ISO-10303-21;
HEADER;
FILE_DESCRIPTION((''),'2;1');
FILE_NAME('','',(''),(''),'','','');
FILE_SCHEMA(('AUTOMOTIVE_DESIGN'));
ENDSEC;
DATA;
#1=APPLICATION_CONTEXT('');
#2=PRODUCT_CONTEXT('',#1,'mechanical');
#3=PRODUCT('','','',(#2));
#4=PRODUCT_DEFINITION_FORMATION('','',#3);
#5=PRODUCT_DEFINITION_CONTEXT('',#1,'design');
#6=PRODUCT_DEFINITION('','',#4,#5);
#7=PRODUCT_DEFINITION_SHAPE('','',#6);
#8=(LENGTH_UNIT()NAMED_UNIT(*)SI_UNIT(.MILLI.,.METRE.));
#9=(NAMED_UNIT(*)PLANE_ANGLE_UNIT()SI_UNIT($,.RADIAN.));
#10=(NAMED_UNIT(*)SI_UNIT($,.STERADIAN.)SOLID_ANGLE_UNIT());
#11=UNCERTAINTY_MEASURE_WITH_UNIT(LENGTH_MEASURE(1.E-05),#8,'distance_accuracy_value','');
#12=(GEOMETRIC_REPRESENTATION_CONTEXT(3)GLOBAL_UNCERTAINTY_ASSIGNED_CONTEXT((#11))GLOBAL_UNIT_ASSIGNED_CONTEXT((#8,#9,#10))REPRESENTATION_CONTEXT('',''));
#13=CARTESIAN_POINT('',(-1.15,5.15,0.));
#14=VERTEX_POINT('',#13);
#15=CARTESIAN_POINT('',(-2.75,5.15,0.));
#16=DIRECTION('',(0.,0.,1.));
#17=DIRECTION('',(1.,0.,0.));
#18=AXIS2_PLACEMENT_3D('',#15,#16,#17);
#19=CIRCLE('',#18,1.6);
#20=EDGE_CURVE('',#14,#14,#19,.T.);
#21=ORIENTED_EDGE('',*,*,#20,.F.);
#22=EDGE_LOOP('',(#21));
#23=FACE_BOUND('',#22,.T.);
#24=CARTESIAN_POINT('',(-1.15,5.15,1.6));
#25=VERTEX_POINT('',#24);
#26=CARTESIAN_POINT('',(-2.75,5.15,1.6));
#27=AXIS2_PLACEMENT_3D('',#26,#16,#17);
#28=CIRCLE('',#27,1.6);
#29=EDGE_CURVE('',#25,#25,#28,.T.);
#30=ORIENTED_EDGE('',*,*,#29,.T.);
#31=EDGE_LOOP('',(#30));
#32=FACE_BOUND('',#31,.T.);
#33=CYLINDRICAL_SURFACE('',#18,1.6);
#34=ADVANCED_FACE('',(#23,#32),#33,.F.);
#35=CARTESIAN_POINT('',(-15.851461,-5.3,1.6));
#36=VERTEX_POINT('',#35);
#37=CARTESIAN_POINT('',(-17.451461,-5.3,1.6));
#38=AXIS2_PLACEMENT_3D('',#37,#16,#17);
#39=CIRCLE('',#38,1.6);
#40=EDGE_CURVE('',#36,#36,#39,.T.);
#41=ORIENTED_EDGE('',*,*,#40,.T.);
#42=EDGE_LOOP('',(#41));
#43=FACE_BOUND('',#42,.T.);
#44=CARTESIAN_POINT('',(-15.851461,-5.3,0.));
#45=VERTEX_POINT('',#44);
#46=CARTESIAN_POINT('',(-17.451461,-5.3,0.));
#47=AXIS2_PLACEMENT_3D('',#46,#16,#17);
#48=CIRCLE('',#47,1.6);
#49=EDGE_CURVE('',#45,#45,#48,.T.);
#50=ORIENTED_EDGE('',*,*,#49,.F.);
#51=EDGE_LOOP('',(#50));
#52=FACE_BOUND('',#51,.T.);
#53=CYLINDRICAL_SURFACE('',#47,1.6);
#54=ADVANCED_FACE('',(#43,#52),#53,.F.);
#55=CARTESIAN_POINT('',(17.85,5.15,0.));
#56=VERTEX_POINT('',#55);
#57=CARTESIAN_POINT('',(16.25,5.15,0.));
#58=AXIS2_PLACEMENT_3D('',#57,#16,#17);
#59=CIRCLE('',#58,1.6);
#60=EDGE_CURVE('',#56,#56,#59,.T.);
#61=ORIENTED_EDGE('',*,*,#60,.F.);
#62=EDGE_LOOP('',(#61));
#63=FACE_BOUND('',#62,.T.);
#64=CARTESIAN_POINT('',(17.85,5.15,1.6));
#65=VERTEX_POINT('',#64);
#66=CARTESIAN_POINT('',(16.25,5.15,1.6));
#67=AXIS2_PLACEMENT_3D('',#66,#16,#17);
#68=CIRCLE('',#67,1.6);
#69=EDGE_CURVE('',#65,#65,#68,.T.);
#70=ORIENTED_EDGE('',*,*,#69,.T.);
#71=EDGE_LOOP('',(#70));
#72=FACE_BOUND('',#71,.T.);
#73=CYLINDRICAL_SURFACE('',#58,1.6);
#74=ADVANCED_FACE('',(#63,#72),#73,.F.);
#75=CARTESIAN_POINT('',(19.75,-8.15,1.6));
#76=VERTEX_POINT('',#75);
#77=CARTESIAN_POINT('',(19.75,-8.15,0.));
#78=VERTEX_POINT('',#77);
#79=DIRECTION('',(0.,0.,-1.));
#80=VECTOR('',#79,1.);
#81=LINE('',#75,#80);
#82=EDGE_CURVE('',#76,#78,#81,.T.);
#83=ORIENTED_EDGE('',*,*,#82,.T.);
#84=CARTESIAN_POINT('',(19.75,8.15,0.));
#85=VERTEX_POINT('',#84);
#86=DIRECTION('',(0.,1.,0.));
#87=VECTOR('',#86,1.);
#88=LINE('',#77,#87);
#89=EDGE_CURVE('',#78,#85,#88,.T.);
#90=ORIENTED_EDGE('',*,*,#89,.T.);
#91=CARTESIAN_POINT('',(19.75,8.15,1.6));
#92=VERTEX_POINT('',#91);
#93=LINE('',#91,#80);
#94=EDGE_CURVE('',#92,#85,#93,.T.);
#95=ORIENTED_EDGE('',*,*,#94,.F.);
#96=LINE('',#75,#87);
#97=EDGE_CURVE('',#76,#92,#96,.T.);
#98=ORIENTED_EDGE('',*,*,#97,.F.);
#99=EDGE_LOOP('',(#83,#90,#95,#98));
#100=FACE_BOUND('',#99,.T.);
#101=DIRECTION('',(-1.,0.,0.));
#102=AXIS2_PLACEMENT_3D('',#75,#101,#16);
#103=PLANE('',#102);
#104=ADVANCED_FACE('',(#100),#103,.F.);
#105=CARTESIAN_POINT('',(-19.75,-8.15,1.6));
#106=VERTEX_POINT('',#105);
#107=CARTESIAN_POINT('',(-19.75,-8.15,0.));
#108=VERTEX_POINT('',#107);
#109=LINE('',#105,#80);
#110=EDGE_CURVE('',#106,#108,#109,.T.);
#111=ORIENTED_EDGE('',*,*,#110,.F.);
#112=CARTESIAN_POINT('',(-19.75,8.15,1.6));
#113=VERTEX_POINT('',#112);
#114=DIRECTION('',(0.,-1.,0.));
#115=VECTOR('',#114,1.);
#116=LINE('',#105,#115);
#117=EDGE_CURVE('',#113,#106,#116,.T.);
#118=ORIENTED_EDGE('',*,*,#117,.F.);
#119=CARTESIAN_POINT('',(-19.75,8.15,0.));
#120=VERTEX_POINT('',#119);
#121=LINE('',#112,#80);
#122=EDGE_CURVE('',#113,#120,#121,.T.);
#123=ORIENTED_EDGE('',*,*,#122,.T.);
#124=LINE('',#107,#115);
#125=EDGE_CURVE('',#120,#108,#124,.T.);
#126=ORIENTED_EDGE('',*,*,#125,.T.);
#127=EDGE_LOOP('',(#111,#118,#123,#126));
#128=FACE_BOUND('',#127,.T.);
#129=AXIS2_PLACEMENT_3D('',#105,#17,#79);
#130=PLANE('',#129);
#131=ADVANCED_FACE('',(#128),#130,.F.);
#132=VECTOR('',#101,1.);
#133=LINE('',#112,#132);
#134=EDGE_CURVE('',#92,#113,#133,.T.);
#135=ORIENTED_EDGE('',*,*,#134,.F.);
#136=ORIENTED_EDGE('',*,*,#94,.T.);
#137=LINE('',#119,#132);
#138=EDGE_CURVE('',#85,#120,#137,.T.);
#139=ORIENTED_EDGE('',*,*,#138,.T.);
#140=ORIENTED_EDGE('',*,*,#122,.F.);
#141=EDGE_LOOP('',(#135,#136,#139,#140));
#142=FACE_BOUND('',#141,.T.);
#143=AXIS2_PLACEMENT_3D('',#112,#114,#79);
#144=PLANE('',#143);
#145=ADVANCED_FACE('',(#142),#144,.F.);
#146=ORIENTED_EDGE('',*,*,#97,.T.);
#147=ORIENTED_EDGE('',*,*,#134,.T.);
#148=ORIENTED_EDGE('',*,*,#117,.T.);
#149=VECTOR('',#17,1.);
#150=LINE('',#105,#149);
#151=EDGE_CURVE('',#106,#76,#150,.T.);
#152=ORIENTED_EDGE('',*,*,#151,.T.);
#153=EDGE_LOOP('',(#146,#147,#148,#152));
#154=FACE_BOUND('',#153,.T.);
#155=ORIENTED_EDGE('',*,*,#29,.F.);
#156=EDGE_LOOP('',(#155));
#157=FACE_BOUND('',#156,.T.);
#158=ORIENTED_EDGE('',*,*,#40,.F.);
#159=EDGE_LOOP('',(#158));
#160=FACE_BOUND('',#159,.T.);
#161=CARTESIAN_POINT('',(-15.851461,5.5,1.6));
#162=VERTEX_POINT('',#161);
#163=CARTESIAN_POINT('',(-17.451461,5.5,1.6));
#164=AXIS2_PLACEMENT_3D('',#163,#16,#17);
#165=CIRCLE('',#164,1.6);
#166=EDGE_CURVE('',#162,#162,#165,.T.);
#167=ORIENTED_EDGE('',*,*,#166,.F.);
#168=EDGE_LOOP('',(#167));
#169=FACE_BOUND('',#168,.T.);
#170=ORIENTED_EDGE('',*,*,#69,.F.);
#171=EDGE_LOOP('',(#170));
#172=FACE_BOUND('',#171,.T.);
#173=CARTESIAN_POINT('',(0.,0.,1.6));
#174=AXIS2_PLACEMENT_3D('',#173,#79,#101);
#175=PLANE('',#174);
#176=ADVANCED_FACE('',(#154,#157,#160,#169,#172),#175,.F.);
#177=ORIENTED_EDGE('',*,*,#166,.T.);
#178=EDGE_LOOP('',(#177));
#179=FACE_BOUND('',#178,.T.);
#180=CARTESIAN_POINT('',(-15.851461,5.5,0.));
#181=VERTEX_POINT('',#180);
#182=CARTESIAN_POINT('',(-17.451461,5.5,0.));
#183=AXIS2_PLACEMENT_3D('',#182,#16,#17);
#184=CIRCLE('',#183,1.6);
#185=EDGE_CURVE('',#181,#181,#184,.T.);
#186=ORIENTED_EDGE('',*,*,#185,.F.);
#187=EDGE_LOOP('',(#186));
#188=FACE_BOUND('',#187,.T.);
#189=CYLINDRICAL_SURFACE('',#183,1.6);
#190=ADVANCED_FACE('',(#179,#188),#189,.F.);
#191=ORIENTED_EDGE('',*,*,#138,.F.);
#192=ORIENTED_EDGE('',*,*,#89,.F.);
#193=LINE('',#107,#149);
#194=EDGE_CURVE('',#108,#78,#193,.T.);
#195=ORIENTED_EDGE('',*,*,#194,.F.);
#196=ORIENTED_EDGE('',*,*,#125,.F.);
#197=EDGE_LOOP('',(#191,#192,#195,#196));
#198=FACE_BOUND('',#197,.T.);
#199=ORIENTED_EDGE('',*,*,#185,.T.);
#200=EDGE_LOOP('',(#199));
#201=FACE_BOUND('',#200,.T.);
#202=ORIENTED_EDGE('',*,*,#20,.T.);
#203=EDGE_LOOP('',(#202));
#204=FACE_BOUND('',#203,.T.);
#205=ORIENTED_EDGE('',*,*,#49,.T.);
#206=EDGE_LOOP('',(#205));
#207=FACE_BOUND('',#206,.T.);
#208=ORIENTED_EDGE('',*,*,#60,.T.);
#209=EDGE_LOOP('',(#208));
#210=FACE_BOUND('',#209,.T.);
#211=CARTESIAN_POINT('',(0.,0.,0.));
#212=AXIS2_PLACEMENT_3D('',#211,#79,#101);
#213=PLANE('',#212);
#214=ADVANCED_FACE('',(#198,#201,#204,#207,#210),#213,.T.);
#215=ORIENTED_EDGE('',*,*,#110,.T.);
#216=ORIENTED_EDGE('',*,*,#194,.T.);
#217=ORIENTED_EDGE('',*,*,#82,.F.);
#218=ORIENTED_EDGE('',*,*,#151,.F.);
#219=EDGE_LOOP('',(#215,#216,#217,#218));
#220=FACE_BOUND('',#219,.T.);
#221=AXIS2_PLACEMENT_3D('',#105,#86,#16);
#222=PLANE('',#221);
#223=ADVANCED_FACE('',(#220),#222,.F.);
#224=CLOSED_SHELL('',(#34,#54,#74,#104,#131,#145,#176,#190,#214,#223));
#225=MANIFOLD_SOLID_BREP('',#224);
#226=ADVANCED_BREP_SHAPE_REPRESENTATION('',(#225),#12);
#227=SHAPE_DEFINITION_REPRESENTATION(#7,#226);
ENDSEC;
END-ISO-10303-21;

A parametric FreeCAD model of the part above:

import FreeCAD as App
import Part
import Sketcher
Q = App.Units.Quantity


def add_polygon(sketch, points):
    """Adds a closed chain of lines whose ends are joined by coincident constraints."""
    first, n = sketch.GeometryCount, len(points)
    for a, b in zip(points, points[1:] + points[:1]):
        sketch.addGeometry(Part.LineSegment(App.Vector(*a, 0), App.Vector(*b, 0)), False)
    for i in range(n):
        sketch.addConstraint(Sketcher.Constraint("Coincident", first + i, 2, first + (i + 1) % n, 1))

doc = App.newDocument("Part")
body = doc.addObject("PartDesign::Body", "Body")

# Sketch on XY plane
sketch1 = body.newObject("Sketcher::SketchObject", "Sketch")
sketch1.AttachmentSupport = (doc.getObject("XY_Plane"), [""])
sketch1.MapMode = "FlatFace"
add_polygon(sketch1, [(-19.75, 8.15), (-19.75, -8.15), (19.75, -8.15), (19.75, 8.15)])  # lines 0-3
sketch1.addConstraint([
    Sketcher.Constraint("Vertical", 0),
    Sketcher.Constraint("Horizontal", 1),
    Sketcher.Constraint("Vertical", 2),
    Sketcher.Constraint("Horizontal", 3),
    Sketcher.Constraint("Symmetric", 0, 2, 2, 2, -1, 1),
    Sketcher.Constraint("DistanceX", 1, 1, 1, 2, Q("39.5 mm")),
    Sketcher.Constraint("DistanceY", 0, 2, 0, 1, Q("16.3 mm")),
])
pad1 = body.newObject("PartDesign::Pad", "Pad")
pad1.Profile = sketch1
pad1.Length = 1.6

# Sketch on XY plane
sketch2 = body.newObject("Sketcher::SketchObject", "Sketch001")
sketch2.AttachmentSupport = (doc.getObject("XY_Plane"), [""])
sketch2.MapMode = "FlatFace"
sketch2.AttachmentOffset = App.Placement(App.Vector(0, 0, 1.6), App.Rotation())
sketch2.addGeometry([
    Part.Circle(App.Vector(-2.75, 5.15, 0), App.Vector(0, 0, 1), 1.6),
    Part.Circle(App.Vector(16.25, 5.15, 0), App.Vector(0, 0, 1), 1.6),
    Part.Circle(App.Vector(-17.451461, 5.5, 0), App.Vector(0, 0, 1), 1.6),
    Part.Circle(App.Vector(-17.451461, -5.3, 0), App.Vector(0, 0, 1), 1.6),
], False)
sketch2.addConstraint([
    Sketcher.Constraint("Equal", 0, 1),
    Sketcher.Constraint("Equal", 1, 2),
    Sketcher.Constraint("Equal", 2, 3),
    Sketcher.Constraint("Horizontal", 0, 3, 1, 3),
    Sketcher.Constraint("Vertical", 2, 3, 3, 3),
    Sketcher.Constraint("Diameter", 0, Q("3.2 mm")),
    Sketcher.Constraint("DistanceX", 0, 3, 1, 3, Q("19 mm")),
    Sketcher.Constraint("DistanceY", -1, 1, 2, 3, Q("5.5 mm")),
    Sketcher.Constraint("DistanceY", 3, 3, -1, 1, Q("5.3 mm")),
    Sketcher.Constraint("DistanceX", 0, 3, -1, 1, Q("2.75 mm")),
    Sketcher.Constraint("DistanceY", -1, 1, 0, 3, Q("5.15 mm")),
    Sketcher.Constraint("DistanceX", 2, 3, -1, 1, Q("17.451461 mm")),
])
pocket1 = body.newObject("PartDesign::Pocket", "Pocket")
pocket1.Profile = sketch2
pocket1.Type = "ThroughAll"

doc.recompute()
